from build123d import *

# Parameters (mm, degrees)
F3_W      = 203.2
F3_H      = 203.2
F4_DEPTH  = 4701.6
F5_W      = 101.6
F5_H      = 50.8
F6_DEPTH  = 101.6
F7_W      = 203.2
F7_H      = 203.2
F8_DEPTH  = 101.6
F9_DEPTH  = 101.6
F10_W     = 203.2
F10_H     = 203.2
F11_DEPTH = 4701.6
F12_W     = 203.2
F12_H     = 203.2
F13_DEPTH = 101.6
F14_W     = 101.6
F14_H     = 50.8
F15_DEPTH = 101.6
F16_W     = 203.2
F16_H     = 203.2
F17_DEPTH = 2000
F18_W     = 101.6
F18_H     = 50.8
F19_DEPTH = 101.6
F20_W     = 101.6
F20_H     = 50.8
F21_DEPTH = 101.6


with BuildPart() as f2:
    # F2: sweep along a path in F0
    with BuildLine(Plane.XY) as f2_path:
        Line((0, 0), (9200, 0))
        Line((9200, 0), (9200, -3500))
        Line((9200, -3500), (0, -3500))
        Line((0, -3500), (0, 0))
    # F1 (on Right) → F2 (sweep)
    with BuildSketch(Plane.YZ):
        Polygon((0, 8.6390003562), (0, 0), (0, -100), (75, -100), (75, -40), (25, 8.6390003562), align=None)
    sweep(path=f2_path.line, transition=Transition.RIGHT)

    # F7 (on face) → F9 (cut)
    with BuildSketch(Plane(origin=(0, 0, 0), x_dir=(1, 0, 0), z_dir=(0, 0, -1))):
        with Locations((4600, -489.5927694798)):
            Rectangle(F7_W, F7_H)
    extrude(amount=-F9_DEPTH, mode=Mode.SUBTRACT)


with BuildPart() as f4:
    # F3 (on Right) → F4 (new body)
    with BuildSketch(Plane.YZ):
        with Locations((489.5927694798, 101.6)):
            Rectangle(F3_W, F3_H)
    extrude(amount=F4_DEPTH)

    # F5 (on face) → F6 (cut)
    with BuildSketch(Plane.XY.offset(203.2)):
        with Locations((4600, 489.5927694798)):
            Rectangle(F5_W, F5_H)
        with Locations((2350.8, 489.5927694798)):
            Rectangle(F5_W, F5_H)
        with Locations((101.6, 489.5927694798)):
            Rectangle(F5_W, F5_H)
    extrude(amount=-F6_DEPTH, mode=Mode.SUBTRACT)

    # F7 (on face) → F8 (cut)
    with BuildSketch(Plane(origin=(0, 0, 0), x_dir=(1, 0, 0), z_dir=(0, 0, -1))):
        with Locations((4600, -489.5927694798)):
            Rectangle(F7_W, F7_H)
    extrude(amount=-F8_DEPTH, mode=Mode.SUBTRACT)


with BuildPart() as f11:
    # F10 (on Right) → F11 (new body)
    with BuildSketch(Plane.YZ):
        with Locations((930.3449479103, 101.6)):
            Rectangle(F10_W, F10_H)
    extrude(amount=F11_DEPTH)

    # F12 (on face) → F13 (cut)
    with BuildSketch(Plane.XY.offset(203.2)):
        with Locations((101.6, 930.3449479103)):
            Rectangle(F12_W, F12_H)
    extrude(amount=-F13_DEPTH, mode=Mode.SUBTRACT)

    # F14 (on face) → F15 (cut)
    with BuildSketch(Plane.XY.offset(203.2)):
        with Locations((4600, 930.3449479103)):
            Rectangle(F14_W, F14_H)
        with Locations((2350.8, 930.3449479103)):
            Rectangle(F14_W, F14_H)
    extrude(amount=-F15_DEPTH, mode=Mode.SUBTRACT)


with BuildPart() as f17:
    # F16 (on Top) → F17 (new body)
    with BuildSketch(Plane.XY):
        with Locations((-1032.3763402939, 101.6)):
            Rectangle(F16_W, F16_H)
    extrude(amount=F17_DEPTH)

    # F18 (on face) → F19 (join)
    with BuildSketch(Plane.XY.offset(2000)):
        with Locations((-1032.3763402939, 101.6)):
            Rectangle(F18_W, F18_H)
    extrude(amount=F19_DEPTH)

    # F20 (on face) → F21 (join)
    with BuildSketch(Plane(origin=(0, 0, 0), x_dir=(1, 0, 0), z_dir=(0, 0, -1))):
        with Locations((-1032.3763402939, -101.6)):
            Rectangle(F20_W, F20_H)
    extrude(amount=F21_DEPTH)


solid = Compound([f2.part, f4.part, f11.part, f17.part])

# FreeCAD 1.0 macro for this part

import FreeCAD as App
import Part
import Sketcher
Q = App.Units.Quantity

doc = App.newDocument("Part")
body = doc.addObject("PartDesign::Body", "Body")

# Sketch on YZ plane
sketch1 = body.newObject("Sketcher::SketchObject", "Sketch")
sketch1.AttachmentSupport = (doc.getObject("YZ_Plane"), [""])
sketch1.MapMode = "FlatFace"
sketch1.addGeometry([
    Part.LineSegment(App.Vector(0, 8.639, 0), App.Vector(0, -100, 0)),  # 0
    Part.LineSegment(App.Vector(0, -100, 0), App.Vector(75, -100, 0)),  # 1
    Part.LineSegment(App.Vector(75, -100, 0), App.Vector(75, -40, 0)),  # 2
    Part.LineSegment(App.Vector(75, -40, 0), App.Vector(25, 8.639, 0)),  # 3
    Part.LineSegment(App.Vector(25, 8.639, 0), App.Vector(0, 8.639, 0)),  # 4
], False)
sketch1.addConstraint([
    Sketcher.Constraint("Coincident", 0, 2, 1, 1),
    Sketcher.Constraint("Coincident", 1, 2, 2, 1),
    Sketcher.Constraint("Coincident", 2, 2, 3, 1),
    Sketcher.Constraint("Coincident", 3, 2, 4, 1),
    Sketcher.Constraint("Coincident", 4, 2, 0, 1),
    Sketcher.Constraint("Vertical", 0),
    Sketcher.Constraint("Horizontal", 1),
    Sketcher.Constraint("Vertical", 2),
    Sketcher.Constraint("Horizontal", 4),
    Sketcher.Constraint("PointOnObject", 0, 2, -2),
    Sketcher.Constraint("DistanceX", 1, 1, 1, 2, Q("75 mm")),
    Sketcher.Constraint("DistanceX", 4, 2, 4, 1, Q("25 mm")),
    Sketcher.Constraint("DistanceY", 2, 1, 2, 2, Q("60 mm")),
    Sketcher.Constraint("DistanceY", 0, 2, -1, 1, Q("100 mm")),
    Sketcher.Constraint("DistanceY", 0, 2, 0, 1, Q("108.639 mm")),
])

# Sketch on XY plane
sketch2 = body.newObject("Sketcher::SketchObject", "Sketch001")
sketch2.AttachmentSupport = (doc.getObject("XY_Plane"), [""])
sketch2.MapMode = "FlatFace"
sketch2.addGeometry([
    Part.LineSegment(App.Vector(0, 0, 0), App.Vector(9200, 0, 0)),
    Part.LineSegment(App.Vector(9200, 0, 0), App.Vector(9200, -3500, 0)),
    Part.LineSegment(App.Vector(9200, -3500, 0), App.Vector(0, -3500, 0)),
    Part.LineSegment(App.Vector(0, -3500, 0), App.Vector(0, 0, 0)),
], False)
sketch2.addConstraint([
    Sketcher.Constraint("Coincident", 0, 2, 1, 1),
    Sketcher.Constraint("Coincident", 1, 2, 2, 1),
    Sketcher.Constraint("Coincident", 2, 2, 3, 1),
    Sketcher.Constraint("Coincident", 3, 2, 0, 1),
    Sketcher.Constraint("Horizontal", 0),
    Sketcher.Constraint("Vertical", 1),
    Sketcher.Constraint("Horizontal", 2),
    Sketcher.Constraint("Vertical", 3),
    Sketcher.Constraint("Coincident", 3, 2, -1, 1),
    Sketcher.Constraint("DistanceX", 0, 1, 0, 2, Q("9200 mm")),
    Sketcher.Constraint("DistanceY", 1, 2, 1, 1, Q("3500 mm")),
])
doc.recompute()

additivepipe = body.newObject("PartDesign::AdditivePipe", "AdditivePipe")
additivepipe.Profile = sketch1
additivepipe.Spine = (sketch2, ["Edge1", "Edge2", "Edge3", "Edge4"])
additivepipe.Transition = "Right corner"

# Sketch on XY plane
sketch3 = body.newObject("Sketcher::SketchObject", "Sketch002")
sketch3.AttachmentSupport = (doc.getObject("XY_Plane"), [""])
sketch3.MapMode = "FlatFace"
sketch3.addGeometry([
    Part.LineSegment(App.Vector(4498.4, 387.992769, 0), App.Vector(4498.4, 591.192769, 0)),
    Part.LineSegment(App.Vector(4498.4, 591.192769, 0), App.Vector(4701.6, 591.192769, 0)),
    Part.LineSegment(App.Vector(4701.6, 591.192769, 0), App.Vector(4701.6, 387.992769, 0)),
    Part.LineSegment(App.Vector(4701.6, 387.992769, 0), App.Vector(4498.4, 387.992769, 0)),
], False)
sketch3.addConstraint([
    Sketcher.Constraint("Coincident", 0, 2, 1, 1),
    Sketcher.Constraint("Coincident", 1, 2, 2, 1),
    Sketcher.Constraint("Coincident", 2, 2, 3, 1),
    Sketcher.Constraint("Coincident", 3, 2, 0, 1),
    Sketcher.Constraint("Vertical", 0),
    Sketcher.Constraint("Horizontal", 1),
    Sketcher.Constraint("Vertical", 2),
    Sketcher.Constraint("Horizontal", 3),
    Sketcher.Constraint("Equal", 3, 0),
    Sketcher.Constraint("DistanceX", 1, 1, 1, 2, Q("203.2 mm")),
    Sketcher.Constraint("DistanceX", -1, 1, 0, 2, Q("4498.4 mm")),
    Sketcher.Constraint("DistanceY", -1, 1, 0, 2, Q("591.192769 mm")),
])
pocket1 = body.newObject("PartDesign::Pocket", "Pocket")
pocket1.Profile = sketch3
pocket1.Length = 101.6
pocket1.Reversed = True
body2 = doc.addObject("PartDesign::Body", "Body001")

# Sketch on YZ plane
sketch4 = body2.newObject("Sketcher::SketchObject", "Sketch003")
sketch4.AttachmentSupport = (doc.getObject("YZ_Plane001"), [""])
sketch4.MapMode = "FlatFace"
sketch4.addGeometry([
    Part.LineSegment(App.Vector(387.992769, 203.2, 0), App.Vector(387.992769, 0, 0)),
    Part.LineSegment(App.Vector(387.992769, 0, 0), App.Vector(591.192769, 0, 0)),
    Part.LineSegment(App.Vector(591.192769, 0, 0), App.Vector(591.192769, 203.2, 0)),
    Part.LineSegment(App.Vector(591.192769, 203.2, 0), App.Vector(387.992769, 203.2, 0)),
], False)
sketch4.addConstraint([
    Sketcher.Constraint("Coincident", 0, 2, 1, 1),
    Sketcher.Constraint("Coincident", 1, 2, 2, 1),
    Sketcher.Constraint("Coincident", 2, 2, 3, 1),
    Sketcher.Constraint("Coincident", 3, 2, 0, 1),
    Sketcher.Constraint("Vertical", 0),
    Sketcher.Constraint("Horizontal", 1),
    Sketcher.Constraint("Vertical", 2),
    Sketcher.Constraint("Horizontal", 3),
    Sketcher.Constraint("PointOnObject", 0, 2, -1),
    Sketcher.Constraint("Equal", 3, 0),
    Sketcher.Constraint("DistanceX", 1, 1, 1, 2, Q("203.2 mm")),
    Sketcher.Constraint("DistanceX", -1, 1, 0, 2, Q("387.992769 mm")),
])
pad1 = body2.newObject("PartDesign::Pad", "Pad")
pad1.Profile = sketch4
pad1.Length = 4701.6

# Sketch on XY plane
sketch5 = body2.newObject("Sketcher::SketchObject", "Sketch004")
sketch5.AttachmentSupport = (doc.getObject("XY_Plane001"), [""])
sketch5.MapMode = "FlatFace"
sketch5.AttachmentOffset = App.Placement(App.Vector(0, 0, 203.2), App.Rotation())
sketch5.addGeometry([
    Part.LineSegment(App.Vector(4549.2, 514.992769, 0), App.Vector(4549.2, 464.192769, 0)),  # 0
    Part.LineSegment(App.Vector(4549.2, 464.192769, 0), App.Vector(4650.8, 464.192769, 0)),  # 1
    Part.LineSegment(App.Vector(4650.8, 464.192769, 0), App.Vector(4650.8, 514.992769, 0)),  # 2
    Part.LineSegment(App.Vector(4650.8, 514.992769, 0), App.Vector(4549.2, 514.992769, 0)),  # 3
    Part.LineSegment(App.Vector(2300, 514.992769, 0), App.Vector(2300, 464.192769, 0)),  # 4
    Part.LineSegment(App.Vector(2300, 464.192769, 0), App.Vector(2401.6, 464.192769, 0)),  # 5
    Part.LineSegment(App.Vector(2401.6, 464.192769, 0), App.Vector(2401.6, 514.992769, 0)),  # 6
    Part.LineSegment(App.Vector(2401.6, 514.992769, 0), App.Vector(2300, 514.992769, 0)),  # 7
    Part.LineSegment(App.Vector(50.8, 514.992769, 0), App.Vector(50.8, 464.192769, 0)),  # 8
    Part.LineSegment(App.Vector(50.8, 464.192769, 0), App.Vector(152.4, 464.192769, 0)),  # 9
    Part.LineSegment(App.Vector(152.4, 464.192769, 0), App.Vector(152.4, 514.992769, 0)),  # 10
    Part.LineSegment(App.Vector(152.4, 514.992769, 0), App.Vector(50.8, 514.992769, 0)),  # 11
], False)
sketch5.addConstraint([
    Sketcher.Constraint("Coincident", 0, 2, 1, 1),
    Sketcher.Constraint("Coincident", 1, 2, 2, 1),
    Sketcher.Constraint("Coincident", 2, 2, 3, 1),
    Sketcher.Constraint("Coincident", 3, 2, 0, 1),
    Sketcher.Constraint("Coincident", 4, 2, 5, 1),
    Sketcher.Constraint("Coincident", 5, 2, 6, 1),
    Sketcher.Constraint("Coincident", 6, 2, 7, 1),
    Sketcher.Constraint("Coincident", 7, 2, 4, 1),
    Sketcher.Constraint("Coincident", 8, 2, 9, 1),
    Sketcher.Constraint("Coincident", 9, 2, 10, 1),
    Sketcher.Constraint("Coincident", 10, 2, 11, 1),
    Sketcher.Constraint("Coincident", 11, 2, 8, 1),
    Sketcher.Constraint("Vertical", 0),
    Sketcher.Constraint("Horizontal", 1),
    Sketcher.Constraint("Vertical", 2),
    Sketcher.Constraint("Horizontal", 3),
    Sketcher.Constraint("Vertical", 4),
    Sketcher.Constraint("Horizontal", 5),
    Sketcher.Constraint("Vertical", 6),
    Sketcher.Constraint("Horizontal", 7),
    Sketcher.Constraint("Vertical", 8),
    Sketcher.Constraint("Horizontal", 9),
    Sketcher.Constraint("Vertical", 10),
    Sketcher.Constraint("Horizontal", 11),
    Sketcher.Constraint("Horizontal", 1, 2, 4, 2),
    Sketcher.Constraint("Horizontal", 3, 2, 6, 2),
    Sketcher.Constraint("Horizontal", 5, 2, 8, 2),
    Sketcher.Constraint("Horizontal", 7, 2, 10, 2),
    Sketcher.Constraint("Equal", 3, 5),
    Sketcher.Constraint("Equal", 7, 9),
    Sketcher.Constraint("DistanceX", 1, 1, 1, 2, Q("101.6 mm")),
    Sketcher.Constraint("DistanceY", 0, 2, 0, 1, Q("50.8 mm")),
    Sketcher.Constraint("DistanceX", -1, 1, 4, 2, Q("2300 mm")),
    Sketcher.Constraint("DistanceX", -1, 1, 0, 2, Q("4549.2 mm")),
    Sketcher.Constraint("DistanceX", -1, 1, 8, 2, Q("50.8 mm")),
    Sketcher.Constraint("DistanceY", -1, 1, 0, 2, Q("464.192769 mm")),
])
pocket2 = body2.newObject("PartDesign::Pocket", "Pocket001")
pocket2.Profile = sketch5
pocket2.Length = 101.6

# Sketch on XY plane
sketch6 = body2.newObject("Sketcher::SketchObject", "Sketch005")
sketch6.AttachmentSupport = (doc.getObject("XY_Plane001"), [""])
sketch6.MapMode = "FlatFace"
sketch6.addGeometry([
    Part.LineSegment(App.Vector(4498.4, 387.992769, 0), App.Vector(4498.4, 591.192769, 0)),
    Part.LineSegment(App.Vector(4498.4, 591.192769, 0), App.Vector(4701.6, 591.192769, 0)),
    Part.LineSegment(App.Vector(4701.6, 591.192769, 0), App.Vector(4701.6, 387.992769, 0)),
    Part.LineSegment(App.Vector(4701.6, 387.992769, 0), App.Vector(4498.4, 387.992769, 0)),
], False)
sketch6.addConstraint([
    Sketcher.Constraint("Coincident", 0, 2, 1, 1),
    Sketcher.Constraint("Coincident", 1, 2, 2, 1),
    Sketcher.Constraint("Coincident", 2, 2, 3, 1),
    Sketcher.Constraint("Coincident", 3, 2, 0, 1),
    Sketcher.Constraint("Vertical", 0),
    Sketcher.Constraint("Horizontal", 1),
    Sketcher.Constraint("Vertical", 2),
    Sketcher.Constraint("Horizontal", 3),
    Sketcher.Constraint("Equal", 3, 0),
    Sketcher.Constraint("DistanceX", 1, 1, 1, 2, Q("203.2 mm")),
    Sketcher.Constraint("DistanceX", -1, 1, 0, 2, Q("4498.4 mm")),
    Sketcher.Constraint("DistanceY", -1, 1, 0, 2, Q("591.192769 mm")),
])
pocket3 = body2.newObject("PartDesign::Pocket", "Pocket002")
pocket3.Profile = sketch6
pocket3.Length = 101.6
pocket3.Reversed = True
body3 = doc.addObject("PartDesign::Body", "Body002")

# Sketch on YZ plane
sketch7 = body3.newObject("Sketcher::SketchObject", "Sketch006")
sketch7.AttachmentSupport = (doc.getObject("YZ_Plane002"), [""])
sketch7.MapMode = "FlatFace"
sketch7.addGeometry([
    Part.LineSegment(App.Vector(828.744948, 203.2, 0), App.Vector(828.744948, 0, 0)),
    Part.LineSegment(App.Vector(828.744948, 0, 0), App.Vector(1031.944948, 0, 0)),
    Part.LineSegment(App.Vector(1031.944948, 0, 0), App.Vector(1031.944948, 203.2, 0)),
    Part.LineSegment(App.Vector(1031.944948, 203.2, 0), App.Vector(828.744948, 203.2, 0)),
], False)
sketch7.addConstraint([
    Sketcher.Constraint("Coincident", 0, 2, 1, 1),
    Sketcher.Constraint("Coincident", 1, 2, 2, 1),
    Sketcher.Constraint("Coincident", 2, 2, 3, 1),
    Sketcher.Constraint("Coincident", 3, 2, 0, 1),
    Sketcher.Constraint("Vertical", 0),
    Sketcher.Constraint("Horizontal", 1),
    Sketcher.Constraint("Vertical", 2),
    Sketcher.Constraint("Horizontal", 3),
    Sketcher.Constraint("PointOnObject", 0, 2, -1),
    Sketcher.Constraint("Equal", 3, 0),
    Sketcher.Constraint("DistanceX", 1, 1, 1, 2, Q("203.2 mm")),
    Sketcher.Constraint("DistanceX", -1, 1, 0, 2, Q("828.744948 mm")),
])
pad2 = body3.newObject("PartDesign::Pad", "Pad001")
pad2.Profile = sketch7
pad2.Length = 4701.6

# Sketch on XY plane
sketch8 = body3.newObject("Sketcher::SketchObject", "Sketch007")
sketch8.AttachmentSupport = (doc.getObject("XY_Plane002"), [""])
sketch8.MapMode = "FlatFace"
sketch8.AttachmentOffset = App.Placement(App.Vector(0, 0, 203.2), App.Rotation())
sketch8.addGeometry([
    Part.LineSegment(App.Vector(0, 1031.944948, 0), App.Vector(0, 828.744948, 0)),
    Part.LineSegment(App.Vector(0, 828.744948, 0), App.Vector(203.2, 828.744948, 0)),
    Part.LineSegment(App.Vector(203.2, 828.744948, 0), App.Vector(203.2, 1031.944948, 0)),
    Part.LineSegment(App.Vector(203.2, 1031.944948, 0), App.Vector(0, 1031.944948, 0)),
], False)
sketch8.addConstraint([
    Sketcher.Constraint("Coincident", 0, 2, 1, 1),
    Sketcher.Constraint("Coincident", 1, 2, 2, 1),
    Sketcher.Constraint("Coincident", 2, 2, 3, 1),
    Sketcher.Constraint("Coincident", 3, 2, 0, 1),
    Sketcher.Constraint("Vertical", 0),
    Sketcher.Constraint("Horizontal", 1),
    Sketcher.Constraint("Vertical", 2),
    Sketcher.Constraint("Horizontal", 3),
    Sketcher.Constraint("PointOnObject", 0, 2, -2),
    Sketcher.Constraint("Equal", 3, 0),
    Sketcher.Constraint("DistanceX", 1, 1, 1, 2, Q("203.2 mm")),
    Sketcher.Constraint("DistanceY", -1, 1, 0, 2, Q("828.744948 mm")),
])
pocket4 = body3.newObject("PartDesign::Pocket", "Pocket003")
pocket4.Profile = sketch8
pocket4.Length = 101.6

# Sketch on XY plane
sketch9 = body3.newObject("Sketcher::SketchObject", "Sketch008")
sketch9.AttachmentSupport = (doc.getObject("XY_Plane002"), [""])
sketch9.MapMode = "FlatFace"
sketch9.AttachmentOffset = App.Placement(App.Vector(0, 0, 203.2), App.Rotation())
sketch9.addGeometry([
    Part.LineSegment(App.Vector(4549.2, 955.744948, 0), App.Vector(4549.2, 904.944948, 0)),  # 0
    Part.LineSegment(App.Vector(4549.2, 904.944948, 0), App.Vector(4650.8, 904.944948, 0)),  # 1
    Part.LineSegment(App.Vector(4650.8, 904.944948, 0), App.Vector(4650.8, 955.744948, 0)),  # 2
    Part.LineSegment(App.Vector(4650.8, 955.744948, 0), App.Vector(4549.2, 955.744948, 0)),  # 3
    Part.LineSegment(App.Vector(2300, 955.744948, 0), App.Vector(2300, 904.944948, 0)),  # 4
    Part.LineSegment(App.Vector(2300, 904.944948, 0), App.Vector(2401.6, 904.944948, 0)),  # 5
    Part.LineSegment(App.Vector(2401.6, 904.944948, 0), App.Vector(2401.6, 955.744948, 0)),  # 6
    Part.LineSegment(App.Vector(2401.6, 955.744948, 0), App.Vector(2300, 955.744948, 0)),  # 7
], False)
sketch9.addConstraint([
    Sketcher.Constraint("Coincident", 0, 2, 1, 1),
    Sketcher.Constraint("Coincident", 1, 2, 2, 1),
    Sketcher.Constraint("Coincident", 2, 2, 3, 1),
    Sketcher.Constraint("Coincident", 3, 2, 0, 1),
    Sketcher.Constraint("Coincident", 4, 2, 5, 1),
    Sketcher.Constraint("Coincident", 5, 2, 6, 1),
    Sketcher.Constraint("Coincident", 6, 2, 7, 1),
    Sketcher.Constraint("Coincident", 7, 2, 4, 1),
    Sketcher.Constraint("Vertical", 0),
    Sketcher.Constraint("Horizontal", 1),
    Sketcher.Constraint("Vertical", 2),
    Sketcher.Constraint("Horizontal", 3),
    Sketcher.Constraint("Vertical", 4),
    Sketcher.Constraint("Horizontal", 5),
    Sketcher.Constraint("Vertical", 6),
    Sketcher.Constraint("Horizontal", 7),
    Sketcher.Constraint("Horizontal", 1, 2, 4, 2),
    Sketcher.Constraint("Horizontal", 3, 2, 6, 2),
    Sketcher.Constraint("Equal", 3, 5),
    Sketcher.Constraint("DistanceX", 1, 1, 1, 2, Q("101.6 mm")),
    Sketcher.Constraint("DistanceY", 0, 2, 0, 1, Q("50.8 mm")),
    Sketcher.Constraint("DistanceX", -1, 1, 4, 2, Q("2300 mm")),
    Sketcher.Constraint("DistanceX", -1, 1, 0, 2, Q("4549.2 mm")),
    Sketcher.Constraint("DistanceY", -1, 1, 0, 2, Q("904.944948 mm")),
])
pocket5 = body3.newObject("PartDesign::Pocket", "Pocket004")
pocket5.Profile = sketch9
pocket5.Length = 101.6
body4 = doc.addObject("PartDesign::Body", "Body003")

# Sketch on XY plane
sketch10 = body4.newObject("Sketcher::SketchObject", "Sketch009")
sketch10.AttachmentSupport = (doc.getObject("XY_Plane003"), [""])
sketch10.MapMode = "FlatFace"
sketch10.addGeometry([
    Part.LineSegment(App.Vector(-1133.97634, 203.2, 0), App.Vector(-1133.97634, 0, 0)),
    Part.LineSegment(App.Vector(-1133.97634, 0, 0), App.Vector(-930.77634, 0, 0)),
    Part.LineSegment(App.Vector(-930.77634, 0, 0), App.Vector(-930.77634, 203.2, 0)),
    Part.LineSegment(App.Vector(-930.77634, 203.2, 0), App.Vector(-1133.97634, 203.2, 0)),
], False)
sketch10.addConstraint([
    Sketcher.Constraint("Coincident", 0, 2, 1, 1),
    Sketcher.Constraint("Coincident", 1, 2, 2, 1),
    Sketcher.Constraint("Coincident", 2, 2, 3, 1),
    Sketcher.Constraint("Coincident", 3, 2, 0, 1),
    Sketcher.Constraint("Vertical", 0),
    Sketcher.Constraint("Horizontal", 1),
    Sketcher.Constraint("Vertical", 2),
    Sketcher.Constraint("Horizontal", 3),
    Sketcher.Constraint("PointOnObject", 0, 2, -1),
    Sketcher.Constraint("Equal", 3, 0),
    Sketcher.Constraint("DistanceX", 1, 1, 1, 2, Q("203.2 mm")),
    Sketcher.Constraint("DistanceX", 0, 2, -1, 1, Q("1133.97634 mm")),
])
pad3 = body4.newObject("PartDesign::Pad", "Pad002")
pad3.Profile = sketch10
pad3.Length = 2000

# Sketch on XY plane
sketch11 = body4.newObject("Sketcher::SketchObject", "Sketch010")
sketch11.AttachmentSupport = (doc.getObject("XY_Plane003"), [""])
sketch11.MapMode = "FlatFace"
sketch11.AttachmentOffset = App.Placement(App.Vector(0, 0, 2000), App.Rotation())
sketch11.addGeometry([
    Part.LineSegment(App.Vector(-1083.17634, 127, 0), App.Vector(-1083.17634, 76.2, 0)),
    Part.LineSegment(App.Vector(-1083.17634, 76.2, 0), App.Vector(-981.57634, 76.2, 0)),
    Part.LineSegment(App.Vector(-981.57634, 76.2, 0), App.Vector(-981.57634, 127, 0)),
    Part.LineSegment(App.Vector(-981.57634, 127, 0), App.Vector(-1083.17634, 127, 0)),
], False)
sketch11.addConstraint([
    Sketcher.Constraint("Coincident", 0, 2, 1, 1),
    Sketcher.Constraint("Coincident", 1, 2, 2, 1),
    Sketcher.Constraint("Coincident", 2, 2, 3, 1),
    Sketcher.Constraint("Coincident", 3, 2, 0, 1),
    Sketcher.Constraint("Vertical", 0),
    Sketcher.Constraint("Horizontal", 1),
    Sketcher.Constraint("Vertical", 2),
    Sketcher.Constraint("Horizontal", 3),
    Sketcher.Constraint("DistanceX", 1, 1, 1, 2, Q("101.6 mm")),
    Sketcher.Constraint("DistanceY", 0, 2, 0, 1, Q("50.8 mm")),
    Sketcher.Constraint("DistanceY", -1, 1, 2, 2, Q("127 mm")),
    Sketcher.Constraint("DistanceX", 0, 2, -1, 1, Q("1083.17634 mm")),
])
pad4 = body4.newObject("PartDesign::Pad", "Pad003")
pad4.Profile = sketch11
pad4.Length = 101.6

# Sketch on XY plane
sketch12 = body4.newObject("Sketcher::SketchObject", "Sketch011")
sketch12.AttachmentSupport = (doc.getObject("XY_Plane003"), [""])
sketch12.MapMode = "FlatFace"
sketch12.addGeometry([
    Part.LineSegment(App.Vector(-1083.17634, 76.2, 0), App.Vector(-1083.17634, 127, 0)),
    Part.LineSegment(App.Vector(-1083.17634, 127, 0), App.Vector(-981.57634, 127, 0)),
    Part.LineSegment(App.Vector(-981.57634, 127, 0), App.Vector(-981.57634, 76.2, 0)),
    Part.LineSegment(App.Vector(-981.57634, 76.2, 0), App.Vector(-1083.17634, 76.2, 0)),
], False)
sketch12.addConstraint([
    Sketcher.Constraint("Coincident", 0, 2, 1, 1),
    Sketcher.Constraint("Coincident", 1, 2, 2, 1),
    Sketcher.Constraint("Coincident", 2, 2, 3, 1),
    Sketcher.Constraint("Coincident", 3, 2, 0, 1),
    Sketcher.Constraint("Vertical", 0),
    Sketcher.Constraint("Horizontal", 1),
    Sketcher.Constraint("Vertical", 2),
    Sketcher.Constraint("Horizontal", 3),
    Sketcher.Constraint("DistanceX", 1, 1, 1, 2, Q("101.6 mm")),
    Sketcher.Constraint("DistanceY", 0, 1, 0, 2, Q("50.8 mm")),
    Sketcher.Constraint("DistanceY", -1, 1, 0, 2, Q("127 mm")),
    Sketcher.Constraint("DistanceX", 0, 2, -1, 1, Q("1083.17634 mm")),
])
pad5 = body4.newObject("PartDesign::Pad", "Pad004")
pad5.Profile = sketch12
pad5.Length = 101.6
pad5.Reversed = True

doc.recompute()
